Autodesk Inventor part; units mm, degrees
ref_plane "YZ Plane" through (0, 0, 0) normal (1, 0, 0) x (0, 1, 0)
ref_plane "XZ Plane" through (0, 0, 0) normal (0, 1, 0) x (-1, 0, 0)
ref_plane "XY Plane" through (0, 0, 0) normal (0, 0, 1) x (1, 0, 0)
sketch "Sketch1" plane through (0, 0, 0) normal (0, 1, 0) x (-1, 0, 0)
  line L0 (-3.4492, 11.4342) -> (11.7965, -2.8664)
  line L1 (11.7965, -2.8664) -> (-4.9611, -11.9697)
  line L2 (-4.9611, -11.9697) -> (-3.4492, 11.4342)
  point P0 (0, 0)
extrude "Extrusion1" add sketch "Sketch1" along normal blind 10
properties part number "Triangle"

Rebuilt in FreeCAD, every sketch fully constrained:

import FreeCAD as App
import Part
import Sketcher
from FreeCAD import Vector


def add_polygon(sketch, points):
    """Adds a closed chain of lines whose ends are joined by coincident constraints."""
    first, n = sketch.GeometryCount, len(points)
    for a, b in zip(points, points[1:] + points[:1]):
        sketch.addGeometry(Part.LineSegment(App.Vector(*a, 0), App.Vector(*b, 0)), False)
    for i in range(n):
        sketch.addConstraint(Sketcher.Constraint("Coincident", first + i, 2, first + (i + 1) % n, 1))

doc = App.newDocument("Part")
params = doc.addObject("Spreadsheet::Sheet", "Params")
for row, (alias, value) in enumerate([
    ("pad1_length", "10 mm"),
], start=1):
    params.set(f"A{row}", alias)
    params.set(f"B{row}", "=" + value)
    params.setAlias(f"B{row}", alias)

body = doc.addObject("PartDesign::Body", "Body")

sketch1 = body.newObject("Sketcher::SketchObject", "Sketch")
sketch1.AttachmentSupport = (doc.getObject("XZ_Plane"), [""])
sketch1.MapMode = "FlatFace"
add_polygon(sketch1, [(-12, -3), (3, 11), (5, -12)])
sketch1.addConstraint([
    Sketcher.Constraint("Distance", 0, 20.903),
    Sketcher.Constraint("DistanceX", -1, 1, 1, 2, 4.961),
    Sketcher.Constraint("DistanceX", 0, 2, 1, 2, 1.512),
    Sketcher.Constraint("DistanceY", 1, 2, 0, 2, 23.404),
    Sketcher.Constraint("Distance", 2, 19.0706),
    Sketcher.Constraint("DistanceY", -1, 1, 0, 2, 11.4342),
])
pad1 = body.newObject("PartDesign::Pad", "Pad")
pad1.Profile = sketch1
pad1.setExpression("Length", "Params.pad1_length")
pad1.Reversed = True

doc.recompute()
